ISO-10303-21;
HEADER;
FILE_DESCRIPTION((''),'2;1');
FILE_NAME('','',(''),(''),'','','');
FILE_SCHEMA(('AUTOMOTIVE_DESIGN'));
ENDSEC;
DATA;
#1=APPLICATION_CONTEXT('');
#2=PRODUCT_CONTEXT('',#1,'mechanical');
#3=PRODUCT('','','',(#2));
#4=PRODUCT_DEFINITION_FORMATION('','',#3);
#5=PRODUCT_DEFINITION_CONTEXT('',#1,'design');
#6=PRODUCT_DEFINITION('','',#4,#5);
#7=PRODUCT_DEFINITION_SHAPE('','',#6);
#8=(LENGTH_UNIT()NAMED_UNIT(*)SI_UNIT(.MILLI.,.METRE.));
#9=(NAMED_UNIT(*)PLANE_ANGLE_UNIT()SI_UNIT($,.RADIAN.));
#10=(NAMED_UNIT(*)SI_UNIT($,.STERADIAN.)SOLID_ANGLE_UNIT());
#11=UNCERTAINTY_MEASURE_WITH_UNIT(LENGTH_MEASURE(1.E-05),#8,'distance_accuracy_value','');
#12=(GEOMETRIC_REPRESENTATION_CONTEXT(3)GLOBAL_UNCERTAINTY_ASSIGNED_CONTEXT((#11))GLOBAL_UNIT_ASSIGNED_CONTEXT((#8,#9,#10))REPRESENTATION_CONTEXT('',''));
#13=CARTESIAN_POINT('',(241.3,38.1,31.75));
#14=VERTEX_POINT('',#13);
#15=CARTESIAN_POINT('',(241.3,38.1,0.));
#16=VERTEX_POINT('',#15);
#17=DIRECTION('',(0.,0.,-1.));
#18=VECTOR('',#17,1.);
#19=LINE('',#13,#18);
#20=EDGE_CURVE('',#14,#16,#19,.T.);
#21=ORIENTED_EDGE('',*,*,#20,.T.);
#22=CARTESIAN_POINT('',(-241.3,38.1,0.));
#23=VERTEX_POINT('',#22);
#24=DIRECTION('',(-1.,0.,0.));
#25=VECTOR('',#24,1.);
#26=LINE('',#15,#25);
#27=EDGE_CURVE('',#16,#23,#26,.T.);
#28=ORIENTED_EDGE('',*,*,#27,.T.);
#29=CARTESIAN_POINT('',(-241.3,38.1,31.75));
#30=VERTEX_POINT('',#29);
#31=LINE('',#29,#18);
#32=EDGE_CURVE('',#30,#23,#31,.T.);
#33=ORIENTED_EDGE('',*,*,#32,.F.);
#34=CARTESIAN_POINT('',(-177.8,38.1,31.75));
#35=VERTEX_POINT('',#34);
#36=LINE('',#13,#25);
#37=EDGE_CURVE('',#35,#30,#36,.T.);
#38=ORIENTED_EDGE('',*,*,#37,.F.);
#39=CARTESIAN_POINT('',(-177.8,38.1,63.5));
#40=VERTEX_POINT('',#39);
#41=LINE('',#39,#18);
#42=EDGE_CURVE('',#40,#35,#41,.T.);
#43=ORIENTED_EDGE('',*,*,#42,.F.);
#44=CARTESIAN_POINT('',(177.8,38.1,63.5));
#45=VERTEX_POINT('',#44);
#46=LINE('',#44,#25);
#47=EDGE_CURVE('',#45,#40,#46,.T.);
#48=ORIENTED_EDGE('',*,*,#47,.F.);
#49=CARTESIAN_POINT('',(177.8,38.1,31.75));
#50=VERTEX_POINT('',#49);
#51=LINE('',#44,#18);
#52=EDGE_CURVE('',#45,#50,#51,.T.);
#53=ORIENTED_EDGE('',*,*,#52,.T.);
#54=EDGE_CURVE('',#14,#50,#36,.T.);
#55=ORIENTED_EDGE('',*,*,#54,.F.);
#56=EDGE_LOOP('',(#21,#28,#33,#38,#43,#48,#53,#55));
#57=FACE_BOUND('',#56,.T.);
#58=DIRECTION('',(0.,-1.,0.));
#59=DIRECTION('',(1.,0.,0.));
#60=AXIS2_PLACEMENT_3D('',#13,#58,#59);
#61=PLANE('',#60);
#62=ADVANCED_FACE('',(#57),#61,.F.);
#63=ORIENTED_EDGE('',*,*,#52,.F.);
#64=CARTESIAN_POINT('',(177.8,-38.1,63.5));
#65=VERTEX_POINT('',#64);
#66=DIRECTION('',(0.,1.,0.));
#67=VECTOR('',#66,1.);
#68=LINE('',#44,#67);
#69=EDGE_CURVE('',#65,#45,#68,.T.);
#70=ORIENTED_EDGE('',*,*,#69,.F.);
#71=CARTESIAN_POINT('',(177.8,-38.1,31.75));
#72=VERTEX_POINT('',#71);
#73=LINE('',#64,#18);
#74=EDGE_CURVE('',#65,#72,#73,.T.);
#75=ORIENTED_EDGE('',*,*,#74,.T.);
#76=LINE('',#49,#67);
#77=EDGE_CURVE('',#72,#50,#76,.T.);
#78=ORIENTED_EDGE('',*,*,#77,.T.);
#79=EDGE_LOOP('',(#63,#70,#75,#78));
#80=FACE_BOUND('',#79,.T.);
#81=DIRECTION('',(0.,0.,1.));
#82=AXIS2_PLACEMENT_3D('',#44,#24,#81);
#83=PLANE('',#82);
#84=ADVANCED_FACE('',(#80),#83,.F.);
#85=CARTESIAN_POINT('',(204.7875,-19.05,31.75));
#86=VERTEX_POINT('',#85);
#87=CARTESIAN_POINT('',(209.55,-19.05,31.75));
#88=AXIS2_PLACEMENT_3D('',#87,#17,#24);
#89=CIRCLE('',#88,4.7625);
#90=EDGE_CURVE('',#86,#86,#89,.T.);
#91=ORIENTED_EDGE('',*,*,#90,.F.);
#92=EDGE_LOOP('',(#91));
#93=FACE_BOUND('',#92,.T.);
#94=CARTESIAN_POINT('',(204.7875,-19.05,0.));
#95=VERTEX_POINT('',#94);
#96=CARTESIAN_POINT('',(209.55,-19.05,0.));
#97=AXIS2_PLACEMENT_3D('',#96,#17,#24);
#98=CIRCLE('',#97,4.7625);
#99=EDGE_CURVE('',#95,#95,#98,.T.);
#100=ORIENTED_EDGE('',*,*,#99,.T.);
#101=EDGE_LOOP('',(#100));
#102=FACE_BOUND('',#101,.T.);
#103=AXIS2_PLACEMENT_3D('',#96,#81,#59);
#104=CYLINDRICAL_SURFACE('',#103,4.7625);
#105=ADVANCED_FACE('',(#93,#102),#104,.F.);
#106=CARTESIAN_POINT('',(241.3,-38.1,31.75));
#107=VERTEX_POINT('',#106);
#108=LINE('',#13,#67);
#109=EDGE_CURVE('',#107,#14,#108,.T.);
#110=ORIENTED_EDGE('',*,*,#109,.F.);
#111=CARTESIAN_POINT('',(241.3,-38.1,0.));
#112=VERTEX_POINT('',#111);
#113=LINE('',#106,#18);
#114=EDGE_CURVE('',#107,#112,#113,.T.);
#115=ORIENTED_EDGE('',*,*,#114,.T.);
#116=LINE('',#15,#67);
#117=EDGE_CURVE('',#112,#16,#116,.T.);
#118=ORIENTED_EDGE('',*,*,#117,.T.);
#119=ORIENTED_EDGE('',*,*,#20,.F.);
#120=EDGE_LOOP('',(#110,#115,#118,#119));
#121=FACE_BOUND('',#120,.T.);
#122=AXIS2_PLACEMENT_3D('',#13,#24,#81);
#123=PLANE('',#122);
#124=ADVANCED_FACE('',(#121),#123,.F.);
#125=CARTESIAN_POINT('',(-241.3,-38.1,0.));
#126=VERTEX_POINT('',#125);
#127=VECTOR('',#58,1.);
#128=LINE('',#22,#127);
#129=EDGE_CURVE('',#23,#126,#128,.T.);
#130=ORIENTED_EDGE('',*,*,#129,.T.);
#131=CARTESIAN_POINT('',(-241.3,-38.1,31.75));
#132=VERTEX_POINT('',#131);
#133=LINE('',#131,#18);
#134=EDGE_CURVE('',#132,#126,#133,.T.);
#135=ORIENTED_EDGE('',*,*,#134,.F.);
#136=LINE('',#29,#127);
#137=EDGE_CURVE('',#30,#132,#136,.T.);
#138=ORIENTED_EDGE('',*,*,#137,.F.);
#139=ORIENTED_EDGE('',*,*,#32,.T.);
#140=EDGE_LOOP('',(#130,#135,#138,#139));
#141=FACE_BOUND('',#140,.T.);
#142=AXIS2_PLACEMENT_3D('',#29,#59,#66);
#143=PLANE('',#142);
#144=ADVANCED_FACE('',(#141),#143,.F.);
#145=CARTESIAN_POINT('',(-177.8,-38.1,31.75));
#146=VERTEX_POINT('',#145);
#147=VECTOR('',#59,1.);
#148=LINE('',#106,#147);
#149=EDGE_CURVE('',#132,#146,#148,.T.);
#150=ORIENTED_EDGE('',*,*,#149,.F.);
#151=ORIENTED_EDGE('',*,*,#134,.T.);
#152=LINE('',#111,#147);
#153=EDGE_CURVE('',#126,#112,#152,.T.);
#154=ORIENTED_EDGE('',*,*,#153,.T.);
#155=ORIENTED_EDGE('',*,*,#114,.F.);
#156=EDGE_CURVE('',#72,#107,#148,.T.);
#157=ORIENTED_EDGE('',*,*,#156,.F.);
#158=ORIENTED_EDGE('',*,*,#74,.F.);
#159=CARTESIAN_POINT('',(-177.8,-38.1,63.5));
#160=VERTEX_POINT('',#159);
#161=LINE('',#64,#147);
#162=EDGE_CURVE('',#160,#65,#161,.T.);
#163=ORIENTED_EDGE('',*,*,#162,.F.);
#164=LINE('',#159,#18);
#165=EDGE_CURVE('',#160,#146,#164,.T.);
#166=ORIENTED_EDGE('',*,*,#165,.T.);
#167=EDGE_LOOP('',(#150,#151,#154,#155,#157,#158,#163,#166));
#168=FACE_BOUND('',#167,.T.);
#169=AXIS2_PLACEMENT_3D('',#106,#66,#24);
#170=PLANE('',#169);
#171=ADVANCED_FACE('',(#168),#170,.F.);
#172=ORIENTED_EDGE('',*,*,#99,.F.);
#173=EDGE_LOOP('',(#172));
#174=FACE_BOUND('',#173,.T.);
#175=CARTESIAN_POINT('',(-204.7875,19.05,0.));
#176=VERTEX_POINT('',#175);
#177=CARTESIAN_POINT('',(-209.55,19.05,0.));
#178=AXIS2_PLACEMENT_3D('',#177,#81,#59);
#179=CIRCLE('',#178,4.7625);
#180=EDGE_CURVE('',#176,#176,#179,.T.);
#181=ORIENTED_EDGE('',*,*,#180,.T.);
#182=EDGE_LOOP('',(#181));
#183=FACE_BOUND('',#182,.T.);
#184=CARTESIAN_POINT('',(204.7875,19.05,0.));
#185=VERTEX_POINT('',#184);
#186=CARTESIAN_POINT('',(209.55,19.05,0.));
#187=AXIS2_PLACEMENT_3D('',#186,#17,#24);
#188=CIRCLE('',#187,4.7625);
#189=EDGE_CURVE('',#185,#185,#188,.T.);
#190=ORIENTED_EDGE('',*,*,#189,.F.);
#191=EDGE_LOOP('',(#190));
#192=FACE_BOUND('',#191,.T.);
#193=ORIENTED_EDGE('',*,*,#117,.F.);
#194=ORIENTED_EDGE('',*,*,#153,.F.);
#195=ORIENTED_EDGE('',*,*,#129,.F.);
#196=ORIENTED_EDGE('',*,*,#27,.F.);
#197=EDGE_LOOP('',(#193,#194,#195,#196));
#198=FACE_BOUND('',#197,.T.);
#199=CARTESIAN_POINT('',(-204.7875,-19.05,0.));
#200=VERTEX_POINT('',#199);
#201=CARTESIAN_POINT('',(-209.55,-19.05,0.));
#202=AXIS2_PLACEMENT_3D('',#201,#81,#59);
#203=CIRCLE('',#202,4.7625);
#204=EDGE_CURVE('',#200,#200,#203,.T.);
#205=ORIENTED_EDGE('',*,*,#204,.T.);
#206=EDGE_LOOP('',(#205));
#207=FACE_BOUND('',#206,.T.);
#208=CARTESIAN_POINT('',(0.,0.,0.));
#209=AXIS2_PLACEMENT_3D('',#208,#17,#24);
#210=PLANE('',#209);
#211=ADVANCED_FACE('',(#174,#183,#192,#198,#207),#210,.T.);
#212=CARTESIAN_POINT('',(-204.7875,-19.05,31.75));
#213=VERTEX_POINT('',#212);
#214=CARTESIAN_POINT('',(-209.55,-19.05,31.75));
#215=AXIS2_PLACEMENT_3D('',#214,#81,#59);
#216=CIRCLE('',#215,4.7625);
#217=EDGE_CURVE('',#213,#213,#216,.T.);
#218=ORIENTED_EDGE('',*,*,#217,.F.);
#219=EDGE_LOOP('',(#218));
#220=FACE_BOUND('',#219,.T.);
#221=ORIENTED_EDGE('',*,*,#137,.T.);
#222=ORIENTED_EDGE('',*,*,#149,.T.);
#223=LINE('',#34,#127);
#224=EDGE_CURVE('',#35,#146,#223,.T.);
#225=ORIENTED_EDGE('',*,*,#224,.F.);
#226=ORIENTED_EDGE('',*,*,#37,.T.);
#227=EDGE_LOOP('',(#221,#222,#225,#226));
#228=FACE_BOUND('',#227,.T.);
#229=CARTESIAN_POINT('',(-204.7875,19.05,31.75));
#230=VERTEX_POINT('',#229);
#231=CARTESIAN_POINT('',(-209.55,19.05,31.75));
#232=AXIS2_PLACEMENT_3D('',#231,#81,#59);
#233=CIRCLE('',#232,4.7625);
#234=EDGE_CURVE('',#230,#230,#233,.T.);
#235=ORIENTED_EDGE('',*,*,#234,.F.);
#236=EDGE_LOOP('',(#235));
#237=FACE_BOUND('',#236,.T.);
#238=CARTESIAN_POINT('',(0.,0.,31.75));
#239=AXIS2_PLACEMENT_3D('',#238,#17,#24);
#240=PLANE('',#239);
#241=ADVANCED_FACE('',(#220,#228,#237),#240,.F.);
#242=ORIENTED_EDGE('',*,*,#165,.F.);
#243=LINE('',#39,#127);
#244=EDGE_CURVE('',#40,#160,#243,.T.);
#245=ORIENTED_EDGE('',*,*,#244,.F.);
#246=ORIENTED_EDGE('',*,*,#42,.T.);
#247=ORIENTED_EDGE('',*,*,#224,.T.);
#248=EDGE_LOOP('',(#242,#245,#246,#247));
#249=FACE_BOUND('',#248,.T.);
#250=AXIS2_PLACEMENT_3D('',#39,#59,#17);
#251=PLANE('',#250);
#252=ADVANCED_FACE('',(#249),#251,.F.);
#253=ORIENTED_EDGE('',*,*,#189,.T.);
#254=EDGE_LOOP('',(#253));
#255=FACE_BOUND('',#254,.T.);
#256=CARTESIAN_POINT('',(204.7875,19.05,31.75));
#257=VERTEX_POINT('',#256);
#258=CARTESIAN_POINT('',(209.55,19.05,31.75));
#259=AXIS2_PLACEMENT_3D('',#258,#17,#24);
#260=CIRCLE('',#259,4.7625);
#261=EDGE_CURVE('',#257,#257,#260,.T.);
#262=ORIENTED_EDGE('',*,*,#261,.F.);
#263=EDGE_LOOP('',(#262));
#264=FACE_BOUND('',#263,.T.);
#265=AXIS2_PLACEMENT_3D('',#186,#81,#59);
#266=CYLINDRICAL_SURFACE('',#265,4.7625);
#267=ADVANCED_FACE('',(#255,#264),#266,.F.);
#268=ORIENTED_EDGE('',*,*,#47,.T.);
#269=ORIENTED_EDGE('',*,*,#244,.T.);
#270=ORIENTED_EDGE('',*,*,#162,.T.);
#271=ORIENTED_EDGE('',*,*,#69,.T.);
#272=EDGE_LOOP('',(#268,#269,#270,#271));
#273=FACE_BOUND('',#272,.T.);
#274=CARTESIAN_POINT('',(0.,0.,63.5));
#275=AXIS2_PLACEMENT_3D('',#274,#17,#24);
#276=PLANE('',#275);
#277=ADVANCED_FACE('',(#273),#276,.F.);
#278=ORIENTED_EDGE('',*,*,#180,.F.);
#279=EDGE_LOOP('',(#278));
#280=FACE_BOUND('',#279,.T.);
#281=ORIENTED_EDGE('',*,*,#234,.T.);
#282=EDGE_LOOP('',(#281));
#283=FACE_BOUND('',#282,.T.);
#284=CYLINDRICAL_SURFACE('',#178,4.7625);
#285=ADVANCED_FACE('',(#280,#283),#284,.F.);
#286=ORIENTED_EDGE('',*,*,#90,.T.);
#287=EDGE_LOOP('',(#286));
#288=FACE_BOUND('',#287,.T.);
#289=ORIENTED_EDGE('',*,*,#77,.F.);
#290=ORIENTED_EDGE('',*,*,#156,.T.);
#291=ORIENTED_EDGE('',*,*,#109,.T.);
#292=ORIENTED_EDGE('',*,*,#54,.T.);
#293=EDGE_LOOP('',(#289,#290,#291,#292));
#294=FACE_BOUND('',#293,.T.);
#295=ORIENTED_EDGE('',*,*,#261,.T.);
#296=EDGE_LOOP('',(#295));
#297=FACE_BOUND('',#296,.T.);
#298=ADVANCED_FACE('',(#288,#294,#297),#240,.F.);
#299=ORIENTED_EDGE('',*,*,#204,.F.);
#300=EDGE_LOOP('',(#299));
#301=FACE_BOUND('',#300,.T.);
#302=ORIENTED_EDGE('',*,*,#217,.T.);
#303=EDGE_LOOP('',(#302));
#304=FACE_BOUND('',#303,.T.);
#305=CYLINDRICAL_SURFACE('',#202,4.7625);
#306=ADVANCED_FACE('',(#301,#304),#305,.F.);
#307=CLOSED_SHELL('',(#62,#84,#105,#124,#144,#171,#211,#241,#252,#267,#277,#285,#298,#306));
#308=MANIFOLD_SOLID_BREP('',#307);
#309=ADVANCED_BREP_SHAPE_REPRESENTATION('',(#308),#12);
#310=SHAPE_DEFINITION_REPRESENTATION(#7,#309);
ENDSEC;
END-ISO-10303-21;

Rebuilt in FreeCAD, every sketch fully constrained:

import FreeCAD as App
import Part
import Sketcher
from FreeCAD import Vector
Q = App.Units.Quantity


def add_polygon(sketch, points):
    """Adds a closed chain of lines whose ends are joined by coincident constraints."""
    first, n = sketch.GeometryCount, len(points)
    for a, b in zip(points, points[1:] + points[:1]):
        sketch.addGeometry(Part.LineSegment(App.Vector(*a, 0), App.Vector(*b, 0)), False)
    for i in range(n):
        sketch.addConstraint(Sketcher.Constraint("Coincident", first + i, 2, first + (i + 1) % n, 1))

doc = App.newDocument("Part")
body = doc.addObject("PartDesign::Body", "Body")

sketch1 = body.newObject("Sketcher::SketchObject", "Sketch")
sketch1.AttachmentSupport = (doc.getObject("XY_Plane"), [""])
sketch1.MapMode = "FlatFace"
add_polygon(sketch1, [(-241, 38), (-241, -38), (241, -38), (241, 38)])
sketch1.addConstraint([
    Sketcher.Constraint("Vertical", 0),
    Sketcher.Constraint("Horizontal", 1),
    Sketcher.Constraint("Vertical", 2),
    Sketcher.Constraint("Horizontal", 3),
    Sketcher.Constraint("Symmetric", 0, 2, 2, 2, -1, 1),
    Sketcher.Constraint("DistanceX", 1, 1, 1, 2, Q("19 in")),
    Sketcher.Constraint("DistanceY", 0, 2, 0, 1, Q("3 in")),
])
pad1 = body.newObject("PartDesign::Pad", "Pad")
pad1.Profile = sketch1
pad1.Length = Q("1.25 in")

sketch2 = body.newObject("Sketcher::SketchObject", "Sketch001")
sketch2.AttachmentSupport = (doc.getObject("XY_Plane"), [""])
sketch2.MapMode = "FlatFace"
sketch2.AttachmentOffset = App.Placement(Vector(0, 0, 1.25 * 25.4), App.Rotation())
add_polygon(sketch2, [(-178, 38), (-178, -38), (178, -38), (178, 38)])
sketch2.addConstraint([
    Sketcher.Constraint("Vertical", 0),
    Sketcher.Constraint("Horizontal", 1),
    Sketcher.Constraint("Vertical", 2),
    Sketcher.Constraint("Horizontal", 3),
    Sketcher.Constraint("Symmetric", 0, 2, 2, 2, -1, 1),
    Sketcher.Constraint("DistanceX", 1, 1, 1, 2, Q("14 in")),
    Sketcher.Constraint("DistanceY", 0, 2, 0, 1, Q("3 in")),
])
pad2 = body.newObject("PartDesign::Pad", "Pad001")
pad2.Profile = sketch2
pad2.Length = Q("1.25 in")

sketch3 = body.newObject("Sketcher::SketchObject", "Sketch002")
sketch3.AttachmentSupport = (doc.getObject("XY_Plane"), [""])
sketch3.MapMode = "FlatFace"
sketch3.AttachmentOffset = App.Placement(Vector(0, 0, 1.25 * 25.4), App.Rotation())
sketch3.addGeometry([
    Part.Circle(Vector(-209.6, 19.1, 0), Vector(0, 0, 1), 4.8),
    Part.Circle(Vector(-209.6, -19.1, 0), Vector(0, 0, 1), 4.8),
], False)
sketch3.addConstraint([
    Sketcher.Constraint("Equal", 0, 1),
    Sketcher.Constraint("Symmetric", 0, 3, 1, 3, -1),
    Sketcher.Constraint("Diameter", 0, Q("0.375 in")),
    Sketcher.Constraint("DistanceY", 1, 3, 0, 3, Q("1.5 in")),
    Sketcher.Constraint("DistanceX", 0, 3, -1, 1, Q("8.25 in")),
])
pocket1 = body.newObject("PartDesign::Pocket", "Pocket")
pocket1.Profile = sketch3
pocket1.Type = "ThroughAll"
doc.recompute()

mirrored = body.newObject("PartDesign::Mirrored", "Mirrored")
mirrored.Originals = [pocket1]
mirrored.MirrorPlane = (doc.getObject("YZ_Plane"), [""])
body.Tip = mirrored

doc.recompute()
